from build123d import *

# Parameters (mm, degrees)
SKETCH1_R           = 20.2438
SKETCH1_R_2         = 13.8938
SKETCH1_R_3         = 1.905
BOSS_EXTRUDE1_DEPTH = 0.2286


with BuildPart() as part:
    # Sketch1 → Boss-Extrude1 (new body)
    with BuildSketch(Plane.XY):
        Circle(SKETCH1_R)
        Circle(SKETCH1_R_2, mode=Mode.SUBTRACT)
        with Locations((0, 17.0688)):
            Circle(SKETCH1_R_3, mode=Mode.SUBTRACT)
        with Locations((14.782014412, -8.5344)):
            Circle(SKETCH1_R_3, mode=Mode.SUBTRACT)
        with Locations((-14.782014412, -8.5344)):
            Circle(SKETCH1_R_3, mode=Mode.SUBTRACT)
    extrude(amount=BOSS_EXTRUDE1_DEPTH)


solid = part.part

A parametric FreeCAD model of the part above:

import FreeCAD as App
import Part
import Sketcher
from FreeCAD import Vector
Q = App.Units.Quantity

doc = App.newDocument("Part")
body = doc.addObject("PartDesign::Body", "Body")

# Sketch on XY plane
sketch1 = body.newObject("Sketcher::SketchObject", "Sketch")
sketch1.AttachmentSupport = (doc.getObject("XY_Plane"), [""])
sketch1.MapMode = "FlatFace"
sketch1.addGeometry(Part.Circle(Vector(0, 0, 0), Vector(0, 0, 1), 20.2), False)
sketch1.addGeometry(Part.Circle(Vector(-14.8, -8.5, 0), Vector(0, 0, 1), 1.9), False)
sketch1.addGeometry(Part.Circle(Vector(0, 0, 0), Vector(0, 0, 1), 13.9), False)
sketch1.addGeometry(Part.Circle(Vector(14.8, -8.5, 0), Vector(0, 0, 1), 1.9), False)
sketch1.addGeometry(Part.Circle(Vector(0, 17.1, 0), Vector(0, 0, 1), 1.9), False)
sketch1.addConstraint(Sketcher.Constraint("Coincident", 0, 3, -1, 1))
sketch1.addConstraint(Sketcher.Constraint("Coincident", 2, 3, -1, 1))
sketch1.addConstraint(Sketcher.Constraint("Equal", 1, 3))
sketch1.addConstraint(Sketcher.Constraint("Equal", 3, 4))
sketch1.addConstraint(Sketcher.Constraint("Symmetric", 1, 3, 3, 3, -2))
sketch1.addConstraint(Sketcher.Constraint("PointOnObject", 4, 3, -2))
sketch1.addConstraint(Sketcher.Constraint("Diameter", 1, Q("0.15 in")))
sketch1.addConstraint(Sketcher.Constraint("Diameter", 0, Q("1.594 in")))
sketch1.addConstraint(Sketcher.Constraint("Diameter", 2, Q("1.094 in")))
sketch1.addConstraint(Sketcher.Constraint("DistanceY", 1, 3, -1, 1, Q("0.336 in")))
sketch1.addConstraint(Sketcher.Constraint("DistanceY", -1, 1, 4, 3, Q("0.672 in")))
sketch1.addConstraint(Sketcher.Constraint("DistanceX", 1, 3, 3, 3, 29.564029))
pad1 = body.newObject("PartDesign::Pad", "Pad")
pad1.Profile = sketch1
pad1.Length = Q("0.009 in")

doc.recompute()
